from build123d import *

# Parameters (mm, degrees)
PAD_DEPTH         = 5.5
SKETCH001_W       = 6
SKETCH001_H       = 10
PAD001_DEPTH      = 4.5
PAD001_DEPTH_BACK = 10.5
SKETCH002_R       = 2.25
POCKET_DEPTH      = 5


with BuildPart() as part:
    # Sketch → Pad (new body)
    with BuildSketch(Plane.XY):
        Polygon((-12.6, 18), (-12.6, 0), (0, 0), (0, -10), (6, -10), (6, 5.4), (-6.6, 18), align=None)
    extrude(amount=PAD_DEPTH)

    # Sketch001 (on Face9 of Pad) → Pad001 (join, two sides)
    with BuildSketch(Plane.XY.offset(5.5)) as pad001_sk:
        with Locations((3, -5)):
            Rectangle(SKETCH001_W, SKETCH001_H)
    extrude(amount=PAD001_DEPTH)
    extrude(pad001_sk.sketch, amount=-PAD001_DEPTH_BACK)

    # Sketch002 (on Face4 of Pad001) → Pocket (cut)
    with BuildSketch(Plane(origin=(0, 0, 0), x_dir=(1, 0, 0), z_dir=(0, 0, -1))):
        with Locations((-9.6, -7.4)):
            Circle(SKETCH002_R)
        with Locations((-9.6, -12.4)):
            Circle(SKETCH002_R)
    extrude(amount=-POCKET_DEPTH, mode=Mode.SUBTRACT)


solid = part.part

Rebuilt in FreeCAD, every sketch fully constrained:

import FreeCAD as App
import Part
import Sketcher
from FreeCAD import Vector
Q = App.Units.Quantity

doc = App.newDocument("Part")
body = doc.addObject("PartDesign::Body", "Body")

# Sketch on XY plane
sketch1 = body.newObject("Sketcher::SketchObject", "Sketch")
sketch1.AttachmentSupport = (doc.getObject("XY_Plane"), [""])
sketch1.MapMode = "FlatFace"
sketch1.addGeometry(Part.LineSegment(Vector(-13, 18, 0), Vector(-13, 0, 0)), False)
sketch1.addGeometry(Part.LineSegment(Vector(-13, 0, 0), Vector(0, 0, 0)), False)
sketch1.addGeometry(Part.LineSegment(Vector(0, 0, 0), Vector(0, -10, 0)), False)
sketch1.addGeometry(Part.LineSegment(Vector(0, -10, 0), Vector(6, -10, 0)), False)
sketch1.addGeometry(Part.LineSegment(Vector(6, -10, 0), Vector(6, 5, 0)), False)
sketch1.addGeometry(Part.LineSegment(Vector(6, 5, 0), Vector(-7, 18, 0)), False)
sketch1.addGeometry(Part.LineSegment(Vector(-7, 18, 0), Vector(-13, 18, 0)), False)
sketch1.addConstraint(Sketcher.Constraint("Coincident", 0, 2, 1, 1))
sketch1.addConstraint(Sketcher.Constraint("Coincident", 1, 2, 2, 1))
sketch1.addConstraint(Sketcher.Constraint("Coincident", 2, 2, 3, 1))
sketch1.addConstraint(Sketcher.Constraint("Coincident", 3, 2, 4, 1))
sketch1.addConstraint(Sketcher.Constraint("Coincident", 4, 2, 5, 1))
sketch1.addConstraint(Sketcher.Constraint("Coincident", 5, 2, 6, 1))
sketch1.addConstraint(Sketcher.Constraint("Coincident", 6, 2, 0, 1))
sketch1.addConstraint(Sketcher.Constraint("Vertical", 0))
sketch1.addConstraint(Sketcher.Constraint("Horizontal", 1))
sketch1.addConstraint(Sketcher.Constraint("Vertical", 2))
sketch1.addConstraint(Sketcher.Constraint("Horizontal", 3))
sketch1.addConstraint(Sketcher.Constraint("Vertical", 4))
sketch1.addConstraint(Sketcher.Constraint("Horizontal", 6))
sketch1.addConstraint(Sketcher.Constraint("Coincident", 1, 2, -1, 1))
sketch1.addConstraint(Sketcher.Constraint("Equal", 3, 6))
sketch1.addConstraint(Sketcher.Constraint("DistanceX", 3, 1, 3, 2, Q("6 mm")))
sketch1.addConstraint(Sketcher.Constraint("DistanceY", 0, 2, 0, 1, Q("18 mm")))
sketch1.addConstraint(Sketcher.Constraint("DistanceY", 2, 2, 2, 1, Q("10 mm")))
sketch1.addConstraint(Sketcher.Constraint("Angle", 5, Q("135 deg")))
sketch1.addConstraint(Sketcher.Constraint("DistanceX", 1, 1, 1, 2, Q("12.6 mm")))
pad1 = body.newObject("PartDesign::Pad", "Pad")
pad1.Profile = sketch1
pad1.Length = 5.5

# Sketch on XY plane
sketch2 = body.newObject("Sketcher::SketchObject", "Sketch001")
sketch2.AttachmentSupport = (doc.getObject("XY_Plane"), [""])
sketch2.MapMode = "FlatFace"
sketch2.AttachmentOffset = App.Placement(Vector(0, 0, 5.5), App.Rotation())
sketch2.addGeometry(Part.LineSegment(Vector(0, 0, 0), Vector(0, -10, 0)), False)
sketch2.addGeometry(Part.LineSegment(Vector(0, -10, 0), Vector(6, -10, 0)), False)
sketch2.addGeometry(Part.LineSegment(Vector(6, -10, 0), Vector(6, 0, 0)), False)
sketch2.addGeometry(Part.LineSegment(Vector(6, 0, 0), Vector(0, 0, 0)), False)
sketch2.addConstraint(Sketcher.Constraint("Coincident", 0, 2, 1, 1))
sketch2.addConstraint(Sketcher.Constraint("Coincident", 1, 2, 2, 1))
sketch2.addConstraint(Sketcher.Constraint("Coincident", 2, 2, 3, 1))
sketch2.addConstraint(Sketcher.Constraint("Coincident", 3, 2, 0, 1))
sketch2.addConstraint(Sketcher.Constraint("Vertical", 0))
sketch2.addConstraint(Sketcher.Constraint("Horizontal", 1))
sketch2.addConstraint(Sketcher.Constraint("Vertical", 2))
sketch2.addConstraint(Sketcher.Constraint("Horizontal", 3))
sketch2.addConstraint(Sketcher.Constraint("Coincident", 3, 2, -1, 1))
sketch2.addConstraint(Sketcher.Constraint("DistanceX", 1, 1, 1, 2, Q("6 mm")))
sketch2.addConstraint(Sketcher.Constraint("DistanceY", 0, 2, 0, 1, Q("10 mm")))
pad2 = body.newObject("PartDesign::Pad", "Pad001")
pad2.Profile = sketch2
pad2.Type = "TwoLengths"
pad2.Length = 4.5
pad2.Length2 = 10.5

# Sketch on XY plane
sketch3 = body.newObject("Sketcher::SketchObject", "Sketch002")
sketch3.AttachmentSupport = (doc.getObject("XY_Plane"), [""])
sketch3.MapMode = "FlatFace"
sketch3.addGeometry(Part.Circle(Vector(-9.6, 7.4, 0), Vector(0, 0, 1), 2.2), False)
sketch3.addGeometry(Part.Circle(Vector(-9.6, 12.4, 0), Vector(0, 0, 1), 2.2), False)
sketch3.addConstraint(Sketcher.Constraint("Equal", 0, 1))
sketch3.addConstraint(Sketcher.Constraint("Vertical", 0, 3, 1, 3))
sketch3.addConstraint(Sketcher.Constraint("Diameter", 0, Q("4.5 mm")))
sketch3.addConstraint(Sketcher.Constraint("DistanceY", 0, 3, 1, 3, Q("5 mm")))
sketch3.addConstraint(Sketcher.Constraint("DistanceX", 0, 3, -1, 1, Q("9.6 mm")))
sketch3.addConstraint(Sketcher.Constraint("DistanceY", -1, 1, 0, 3, Q("7.4 mm")))
pocket1 = body.newObject("PartDesign::Pocket", "Pocket")
pocket1.Profile = sketch3
pocket1.Length = 5
pocket1.Reversed = True

doc.recompute()
